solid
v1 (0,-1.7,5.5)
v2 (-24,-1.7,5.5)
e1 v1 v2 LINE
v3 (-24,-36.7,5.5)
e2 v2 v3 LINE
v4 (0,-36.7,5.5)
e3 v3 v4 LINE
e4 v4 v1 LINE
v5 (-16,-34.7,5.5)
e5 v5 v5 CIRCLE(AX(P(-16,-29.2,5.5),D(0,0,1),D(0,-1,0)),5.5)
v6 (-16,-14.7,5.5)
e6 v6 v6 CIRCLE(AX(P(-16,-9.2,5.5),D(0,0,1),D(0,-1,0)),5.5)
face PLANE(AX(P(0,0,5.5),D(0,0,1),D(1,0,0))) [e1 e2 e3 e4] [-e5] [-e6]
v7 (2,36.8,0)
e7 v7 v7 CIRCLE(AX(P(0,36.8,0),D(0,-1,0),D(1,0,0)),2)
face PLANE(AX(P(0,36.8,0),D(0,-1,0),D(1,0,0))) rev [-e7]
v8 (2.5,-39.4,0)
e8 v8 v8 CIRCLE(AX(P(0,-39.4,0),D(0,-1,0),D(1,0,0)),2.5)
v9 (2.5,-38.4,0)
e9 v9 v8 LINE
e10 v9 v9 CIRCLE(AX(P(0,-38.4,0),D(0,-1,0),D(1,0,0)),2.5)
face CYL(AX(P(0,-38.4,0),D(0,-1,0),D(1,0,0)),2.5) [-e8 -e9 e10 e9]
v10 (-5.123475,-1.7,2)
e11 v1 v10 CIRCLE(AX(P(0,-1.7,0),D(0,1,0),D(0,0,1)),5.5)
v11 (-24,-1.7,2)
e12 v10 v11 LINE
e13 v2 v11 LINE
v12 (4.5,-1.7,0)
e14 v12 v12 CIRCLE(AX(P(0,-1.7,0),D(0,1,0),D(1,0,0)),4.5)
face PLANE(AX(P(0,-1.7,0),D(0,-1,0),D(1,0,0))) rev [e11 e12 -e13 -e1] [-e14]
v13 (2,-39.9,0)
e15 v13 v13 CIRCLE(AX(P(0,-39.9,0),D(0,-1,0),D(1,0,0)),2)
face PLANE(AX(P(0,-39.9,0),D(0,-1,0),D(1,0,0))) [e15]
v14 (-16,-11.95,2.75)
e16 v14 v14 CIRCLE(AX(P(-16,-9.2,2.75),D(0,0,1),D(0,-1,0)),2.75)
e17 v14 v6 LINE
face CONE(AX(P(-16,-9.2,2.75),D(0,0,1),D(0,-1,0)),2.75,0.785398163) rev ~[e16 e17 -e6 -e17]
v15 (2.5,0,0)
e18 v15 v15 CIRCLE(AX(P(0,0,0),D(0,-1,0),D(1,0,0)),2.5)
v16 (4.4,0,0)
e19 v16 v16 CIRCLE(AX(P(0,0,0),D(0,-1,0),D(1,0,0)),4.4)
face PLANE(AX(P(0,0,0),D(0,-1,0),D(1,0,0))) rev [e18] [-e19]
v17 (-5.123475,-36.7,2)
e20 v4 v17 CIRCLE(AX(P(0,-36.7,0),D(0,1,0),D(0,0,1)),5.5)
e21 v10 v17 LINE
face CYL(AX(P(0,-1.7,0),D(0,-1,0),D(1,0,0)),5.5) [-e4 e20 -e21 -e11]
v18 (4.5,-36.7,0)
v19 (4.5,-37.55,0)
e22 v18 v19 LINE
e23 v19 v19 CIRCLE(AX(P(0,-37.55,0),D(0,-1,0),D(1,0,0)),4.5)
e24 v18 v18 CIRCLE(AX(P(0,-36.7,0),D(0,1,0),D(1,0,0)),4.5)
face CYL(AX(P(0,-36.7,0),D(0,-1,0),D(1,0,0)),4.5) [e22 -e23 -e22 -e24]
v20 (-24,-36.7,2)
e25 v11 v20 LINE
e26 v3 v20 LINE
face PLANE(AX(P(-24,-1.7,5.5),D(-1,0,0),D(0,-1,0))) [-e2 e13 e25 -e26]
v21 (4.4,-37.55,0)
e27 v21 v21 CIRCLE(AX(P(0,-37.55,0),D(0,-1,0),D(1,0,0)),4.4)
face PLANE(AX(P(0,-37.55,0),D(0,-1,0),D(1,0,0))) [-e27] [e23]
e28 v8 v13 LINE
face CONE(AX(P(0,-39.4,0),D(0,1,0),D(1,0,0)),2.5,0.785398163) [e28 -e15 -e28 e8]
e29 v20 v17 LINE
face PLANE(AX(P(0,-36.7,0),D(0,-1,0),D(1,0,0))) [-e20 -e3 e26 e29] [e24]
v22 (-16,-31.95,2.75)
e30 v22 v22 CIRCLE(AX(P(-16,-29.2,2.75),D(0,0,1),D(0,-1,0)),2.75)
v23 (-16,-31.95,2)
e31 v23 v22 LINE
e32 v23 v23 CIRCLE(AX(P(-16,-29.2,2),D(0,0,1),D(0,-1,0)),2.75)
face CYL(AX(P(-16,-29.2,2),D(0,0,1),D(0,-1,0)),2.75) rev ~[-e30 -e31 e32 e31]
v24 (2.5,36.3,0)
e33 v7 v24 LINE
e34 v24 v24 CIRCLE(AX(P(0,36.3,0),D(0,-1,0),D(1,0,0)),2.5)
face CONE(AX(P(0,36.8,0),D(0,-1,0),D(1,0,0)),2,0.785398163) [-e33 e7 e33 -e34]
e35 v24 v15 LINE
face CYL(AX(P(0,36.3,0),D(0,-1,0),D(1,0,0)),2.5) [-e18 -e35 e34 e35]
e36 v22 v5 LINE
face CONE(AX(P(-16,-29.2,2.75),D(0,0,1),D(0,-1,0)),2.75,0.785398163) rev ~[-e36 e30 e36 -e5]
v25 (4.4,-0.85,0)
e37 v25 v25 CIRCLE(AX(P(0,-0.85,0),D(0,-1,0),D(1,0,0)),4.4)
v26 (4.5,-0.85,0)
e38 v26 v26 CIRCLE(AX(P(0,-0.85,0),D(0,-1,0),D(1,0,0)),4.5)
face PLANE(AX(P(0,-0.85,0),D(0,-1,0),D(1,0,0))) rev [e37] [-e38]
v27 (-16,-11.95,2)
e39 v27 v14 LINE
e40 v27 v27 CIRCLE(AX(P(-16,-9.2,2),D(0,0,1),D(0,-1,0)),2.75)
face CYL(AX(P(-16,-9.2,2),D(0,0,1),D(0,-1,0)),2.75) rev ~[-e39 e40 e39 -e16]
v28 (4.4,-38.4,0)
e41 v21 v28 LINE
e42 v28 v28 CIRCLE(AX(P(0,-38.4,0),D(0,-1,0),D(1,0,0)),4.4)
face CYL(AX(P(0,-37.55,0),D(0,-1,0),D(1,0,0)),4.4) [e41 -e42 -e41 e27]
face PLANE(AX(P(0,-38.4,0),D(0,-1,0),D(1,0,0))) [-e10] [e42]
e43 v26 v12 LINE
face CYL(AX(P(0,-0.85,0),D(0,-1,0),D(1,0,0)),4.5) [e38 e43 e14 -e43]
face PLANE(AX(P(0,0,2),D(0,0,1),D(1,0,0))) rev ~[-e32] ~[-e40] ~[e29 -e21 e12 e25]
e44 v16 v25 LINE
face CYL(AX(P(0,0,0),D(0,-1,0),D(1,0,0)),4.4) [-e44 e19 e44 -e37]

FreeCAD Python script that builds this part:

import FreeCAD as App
import Part
import Sketcher
from FreeCAD import Vector
Q = App.Units.Quantity

doc = App.newDocument("Part")
params = doc.addObject("Spreadsheet::Sheet", "Params")
for row, (alias, value) in enumerate([
    ("sketch1_width", "2 mm"),
    ("sketch1_width2", "1 mm"),
    ("sketch1_height", "35 mm"),
    ("sketch1_width3", "1.9 mm"),
    ("sketch1_width4", "0.1 mm"),
    ("revolution_angle", "360 deg"),
    ("sketch2_width", "24 mm"),
    ("sketch2_height", "35 mm"),
    ("pad1_length", "3.5 mm"),
    ("sketch3_width", "5.5 mm"),
    ("sketch3_height", "3.5 mm"),
    ("sketch3_width2", "2.75 mm"),
    ("groove_angle", "360 deg"),
    ("sketch4_width", "5.5 mm"),
    ("sketch4_height", "3.5 mm"),
    ("sketch4_width2", "2.75 mm"),
    ("groove2_angle", "360 deg"),
], start=1):
    params.set(f"A{row}", alias)
    params.set(f"B{row}", "=" + value)
    params.setAlias(f"B{row}", alias)

body = doc.addObject("PartDesign::Body", "Body")

sketch1 = doc.addObject("Sketcher::SketchObject", "Sketch")
body.addObject(sketch1)
sketch1.AttachmentSupport = (doc.XY_Plane, [""])
sketch1.MapMode = "FlatFace"
sketch1.addGeometry([
    Part.LineSegment(Vector(0, 36.8, 0), Vector(0, -39.9, 0)),
    Part.LineSegment(Vector(0, -39.9, 0), Vector(2, -39.9, 0)),
    Part.LineSegment(Vector(2, -39.9, 0), Vector(2.5, -39.4, 0)),
    Part.LineSegment(Vector(2.5, -39.4, 0), Vector(2.5, -38.4, 0)),
    Part.LineSegment(Vector(2.5, -38.4, 0), Vector(4.4, -38.4, 0)),
    Part.LineSegment(Vector(4.4, -38.4, 0), Vector(4.4, -37.55, 0)),
    Part.LineSegment(Vector(4.4, -37.55, 0), Vector(4.5, -37.55, 0)),
    Part.LineSegment(Vector(4.5, -37.55, 0), Vector(4.5, -36.7, 0)),
    Part.LineSegment(Vector(4.5, -36.7, 0), Vector(5.5, -36.7, 0)),
    Part.LineSegment(Vector(5.5, -36.7, 0), Vector(5.5, -1.7, 0)),
    Part.LineSegment(Vector(5.5, -1.7, 0), Vector(4.5, -1.7, 0)),
    Part.LineSegment(Vector(4.5, -1.7, 0), Vector(4.5, -0.85, 0)),
    Part.LineSegment(Vector(4.5, -0.85, 0), Vector(4.4, -0.85, 0)),
    Part.LineSegment(Vector(4.4, -0.85, 0), Vector(4.4, 0, 0)),
    Part.LineSegment(Vector(4.4, 0, 0), Vector(2.5, 0, 0)),
    Part.LineSegment(Vector(2.5, 0, 0), Vector(2.5, 36.3, 0)),
    Part.LineSegment(Vector(2.5, 36.3, 0), Vector(2, 36.8, 0)),
    Part.LineSegment(Vector(2, 36.8, 0), Vector(0, 36.8, 0)),
], False)
sketch1.addConstraint([
    Sketcher.Constraint("Coincident", 0, 2, 1, 1),
    Sketcher.Constraint("Coincident", 1, 2, 2, 1),
    Sketcher.Constraint("Coincident", 2, 2, 3, 1),
    Sketcher.Constraint("Coincident", 3, 2, 4, 1),
    Sketcher.Constraint("Coincident", 4, 2, 5, 1),
    Sketcher.Constraint("Coincident", 5, 2, 6, 1),
    Sketcher.Constraint("Coincident", 6, 2, 7, 1),
    Sketcher.Constraint("Coincident", 7, 2, 8, 1),
    Sketcher.Constraint("Coincident", 8, 2, 9, 1),
    Sketcher.Constraint("Coincident", 9, 2, 10, 1),
    Sketcher.Constraint("Coincident", 10, 2, 11, 1),
    Sketcher.Constraint("Coincident", 11, 2, 12, 1),
    Sketcher.Constraint("Coincident", 12, 2, 13, 1),
    Sketcher.Constraint("Coincident", 13, 2, 14, 1),
    Sketcher.Constraint("Coincident", 14, 2, 15, 1),
    Sketcher.Constraint("Coincident", 15, 2, 16, 1),
    Sketcher.Constraint("Coincident", 16, 2, 17, 1),
    Sketcher.Constraint("Coincident", 17, 2, 0, 1),
    Sketcher.Constraint("Vertical", 0),
    Sketcher.Constraint("Horizontal", 1),
    Sketcher.Constraint("Vertical", 3),
    Sketcher.Constraint("Horizontal", 4),
    Sketcher.Constraint("Vertical", 5),
    Sketcher.Constraint("Horizontal", 6),
    Sketcher.Constraint("Vertical", 7),
    Sketcher.Constraint("Horizontal", 8),
    Sketcher.Constraint("Vertical", 9),
    Sketcher.Constraint("Horizontal", 10),
    Sketcher.Constraint("Vertical", 11),
    Sketcher.Constraint("Horizontal", 12),
    Sketcher.Constraint("Vertical", 13),
    Sketcher.Constraint("Horizontal", 14),
    Sketcher.Constraint("Vertical", 15),
    Sketcher.Constraint("Horizontal", 17),
    Sketcher.Constraint("PointOnObject", 0, 2, -2),
    Sketcher.Constraint("PointOnObject", 13, 2, -1),
    Sketcher.Constraint("Perpendicular", 2, 16),
    Sketcher.Constraint("Vertical", 7, 2, 10, 2),
    Sketcher.Constraint("Vertical", 5, 2, 12, 2),
    Sketcher.Constraint("Vertical", 3, 2, 14, 2),
    Sketcher.Constraint("Vertical", 1, 2, 16, 2),
    Sketcher.Constraint("Equal", 10, 3),
    Sketcher.Constraint("Equal", 5, 7),
    Sketcher.Constraint("Equal", 7, 11),
    Sketcher.Constraint("Equal", 11, 13),
    Sketcher.Constraint("Equal", 2, 16),
    Sketcher.Constraint("DistanceX", 1, 1, 1, 2, Q("2 mm")),
    Sketcher.Constraint("DistanceX", 8, 1, 8, 2, Q("1 mm")),
    Sketcher.Constraint("DistanceY", 9, 1, 9, 2, Q("35 mm")),
    Sketcher.Constraint("DistanceX", 4, 1, 4, 2, Q("1.9 mm")),
    Sketcher.Constraint("DistanceX", 6, 1, 6, 2, Q("0.1 mm")),
    Sketcher.Constraint("DistanceY", 0, 2, 0, 1, Q("76.7 mm")),
    Sketcher.Constraint("DistanceY", 15, 1, 15, 2, Q("36.3 mm")),
    Sketcher.Constraint("DistanceY", 10, 2, 15, 2, Q("38 mm")),
])
sketch1.setExpression("Constraints[46]", "Params.sketch1_width")
sketch1.setExpression("Constraints[47]", "Params.sketch1_width2")
sketch1.setExpression("Constraints[48]", "Params.sketch1_height")
sketch1.setExpression("Constraints[49]", "Params.sketch1_width3")
sketch1.setExpression("Constraints[50]", "Params.sketch1_width4")
revolution = doc.addObject("PartDesign::Revolution", "Revolution")
body.addObject(revolution)
revolution.Profile = sketch1
revolution.ReferenceAxis = (sketch1, ["V_Axis"])
revolution.setExpression("Angle", "Params.revolution_angle")

sketch2 = doc.addObject("Sketcher::SketchObject", "Sketch001")
body.addObject(sketch2)
sketch2.AttachmentSupport = (doc.XY_Plane, [""])
sketch2.MapMode = "FlatFace"
sketch2.AttachmentOffset = App.Placement(Vector(0, 0, 5.5), App.Rotation())
sketch2.addGeometry([
    Part.LineSegment(Vector(0, -2, 0), Vector(-24, -2, 0)),
    Part.LineSegment(Vector(-24, -2, 0), Vector(-24, -37, 0)),
    Part.LineSegment(Vector(-24, -37, 0), Vector(0, -37, 0)),
    Part.LineSegment(Vector(0, -37, 0), Vector(0, -2, 0)),
], False)
sketch2.addConstraint([
    Sketcher.Constraint("Coincident", 0, 2, 1, 1),
    Sketcher.Constraint("Coincident", 1, 2, 2, 1),
    Sketcher.Constraint("Coincident", 2, 2, 3, 1),
    Sketcher.Constraint("Coincident", 3, 2, 0, 1),
    Sketcher.Constraint("Horizontal", 0),
    Sketcher.Constraint("Vertical", 1),
    Sketcher.Constraint("Horizontal", 2),
    Sketcher.Constraint("Vertical", 3),
    Sketcher.Constraint("PointOnObject", 2, 2, -2),
    Sketcher.Constraint("DistanceX", 0, 2, 0, 1, Q("24 mm")),
    Sketcher.Constraint("DistanceY", 1, 2, 1, 1, Q("35 mm")),
    Sketcher.Constraint("DistanceY", 0, 2, -1, 1, Q("1.7 mm")),
])
sketch2.setExpression("Constraints[9]", "Params.sketch2_width")
sketch2.setExpression("Constraints[10]", "Params.sketch2_height")
pad1 = doc.addObject("PartDesign::Pad", "Pad")
body.addObject(pad1)
pad1.Profile = sketch2
pad1.setExpression("Length", "Params.pad1_length")
pad1.Reversed = True

sketch3 = doc.addObject("Sketcher::SketchObject", "Sketch002")
body.addObject(sketch3)
sketch3.AttachmentSupport = (doc.YZ_Plane, [""])
sketch3.MapMode = "FlatFace"
sketch3.AttachmentOffset = App.Placement(Vector(0, 0, -16), App.Rotation())
sketch3.addGeometry([
    Part.LineSegment(Vector(-9.2, 2, 0), Vector(-9.2, 5.5, 0)),
    Part.LineSegment(Vector(-9.2, 5.5, 0), Vector(-14.7, 5.5, 0)),
    Part.LineSegment(Vector(-14.7, 5.5, 0), Vector(-11.9, 2.8, 0)),
    Part.LineSegment(Vector(-11.9, 2.8, 0), Vector(-11.9, 2, 0)),
    Part.LineSegment(Vector(-11.9, 2, 0), Vector(-9.2, 2, 0)),
], False)
sketch3.addGeometry(Part.LineSegment(Vector(-9.2, 2, 0), Vector(-9.2, 5.5, 0)), True)
sketch3.addConstraint([
    Sketcher.Constraint("Coincident", 0, 2, 1, 1),
    Sketcher.Constraint("Coincident", 1, 2, 2, 1),
    Sketcher.Constraint("Coincident", 2, 2, 3, 1),
    Sketcher.Constraint("Coincident", 3, 2, 4, 1),
    Sketcher.Constraint("Coincident", 4, 2, 0, 1),
    Sketcher.Constraint("Vertical", 0),
    Sketcher.Constraint("Horizontal", 1),
    Sketcher.Constraint("Vertical", 3),
    Sketcher.Constraint("Horizontal", 4),
    Sketcher.Constraint("Vertical", 5),
    Sketcher.Constraint("Coincident", 5, 1, 4, 2),
    Sketcher.Constraint("Horizontal", 1, 2, 5, 2),
    Sketcher.Constraint("Angle", 2, Q("-45 deg")),
    Sketcher.Constraint("DistanceX", 1, 2, 1, 1, Q("5.5 mm")),
    Sketcher.Constraint("DistanceY", 0, 1, 0, 2, Q("3.5 mm")),
    Sketcher.Constraint("DistanceY", -1, 1, 3, 2, Q("2 mm")),
    Sketcher.Constraint("DistanceX", 4, 1, 4, 2, Q("2.75 mm")),
    Sketcher.Constraint("DistanceX", 0, 2, -1, 1, Q("9.2 mm")),
])
sketch3.setExpression("Constraints[13]", "Params.sketch3_width")
sketch3.setExpression("Constraints[14]", "Params.sketch3_height")
sketch3.setExpression("Constraints[16]", "Params.sketch3_width2")
groove = doc.addObject("PartDesign::Groove", "Groove")
body.addObject(groove)
groove.Profile = sketch3
groove.ReferenceAxis = (sketch3, ["Axis0"])
groove.setExpression("Angle", "Params.groove_angle")

sketch4 = doc.addObject("Sketcher::SketchObject", "Sketch003")
body.addObject(sketch4)
sketch4.AttachmentSupport = (doc.YZ_Plane, [""])
sketch4.MapMode = "FlatFace"
sketch4.AttachmentOffset = App.Placement(Vector(0, 0, -16), App.Rotation())
sketch4.addGeometry([
    Part.LineSegment(Vector(-29.2, 2, 0), Vector(-29.2, 5.5, 0)),
    Part.LineSegment(Vector(-29.2, 5.5, 0), Vector(-34.7, 5.5, 0)),
    Part.LineSegment(Vector(-34.7, 5.5, 0), Vector(-31.9, 2.8, 0)),
    Part.LineSegment(Vector(-31.9, 2.8, 0), Vector(-31.9, 2, 0)),
    Part.LineSegment(Vector(-31.9, 2, 0), Vector(-29.2, 2, 0)),
], False)
sketch4.addGeometry(Part.LineSegment(Vector(-29.2, 2, 0), Vector(-29.2, 5.5, 0)), True)
sketch4.addConstraint([
    Sketcher.Constraint("Coincident", 0, 2, 1, 1),
    Sketcher.Constraint("Coincident", 1, 2, 2, 1),
    Sketcher.Constraint("Coincident", 2, 2, 3, 1),
    Sketcher.Constraint("Coincident", 3, 2, 4, 1),
    Sketcher.Constraint("Coincident", 4, 2, 0, 1),
    Sketcher.Constraint("Vertical", 0),
    Sketcher.Constraint("Horizontal", 1),
    Sketcher.Constraint("Vertical", 3),
    Sketcher.Constraint("Horizontal", 4),
    Sketcher.Constraint("Vertical", 5),
    Sketcher.Constraint("Coincident", 5, 1, 4, 2),
    Sketcher.Constraint("Horizontal", 1, 2, 5, 2),
    Sketcher.Constraint("Angle", 2, Q("-45 deg")),
    Sketcher.Constraint("DistanceX", 1, 2, 1, 1, Q("5.5 mm")),
    Sketcher.Constraint("DistanceY", 0, 1, 0, 2, Q("3.5 mm")),
    Sketcher.Constraint("DistanceY", -1, 1, 3, 2, Q("2 mm")),
    Sketcher.Constraint("DistanceX", 4, 1, 4, 2, Q("2.75 mm")),
    Sketcher.Constraint("DistanceX", 0, 2, -1, 1, Q("29.2 mm")),
])
sketch4.setExpression("Constraints[13]", "Params.sketch4_width")
sketch4.setExpression("Constraints[14]", "Params.sketch4_height")
sketch4.setExpression("Constraints[16]", "Params.sketch4_width2")
groove2 = doc.addObject("PartDesign::Groove", "Groove001")
body.addObject(groove2)
groove2.Profile = sketch4
groove2.ReferenceAxis = (sketch4, ["Axis0"])
groove2.setExpression("Angle", "Params.groove2_angle")

doc.recompute()
